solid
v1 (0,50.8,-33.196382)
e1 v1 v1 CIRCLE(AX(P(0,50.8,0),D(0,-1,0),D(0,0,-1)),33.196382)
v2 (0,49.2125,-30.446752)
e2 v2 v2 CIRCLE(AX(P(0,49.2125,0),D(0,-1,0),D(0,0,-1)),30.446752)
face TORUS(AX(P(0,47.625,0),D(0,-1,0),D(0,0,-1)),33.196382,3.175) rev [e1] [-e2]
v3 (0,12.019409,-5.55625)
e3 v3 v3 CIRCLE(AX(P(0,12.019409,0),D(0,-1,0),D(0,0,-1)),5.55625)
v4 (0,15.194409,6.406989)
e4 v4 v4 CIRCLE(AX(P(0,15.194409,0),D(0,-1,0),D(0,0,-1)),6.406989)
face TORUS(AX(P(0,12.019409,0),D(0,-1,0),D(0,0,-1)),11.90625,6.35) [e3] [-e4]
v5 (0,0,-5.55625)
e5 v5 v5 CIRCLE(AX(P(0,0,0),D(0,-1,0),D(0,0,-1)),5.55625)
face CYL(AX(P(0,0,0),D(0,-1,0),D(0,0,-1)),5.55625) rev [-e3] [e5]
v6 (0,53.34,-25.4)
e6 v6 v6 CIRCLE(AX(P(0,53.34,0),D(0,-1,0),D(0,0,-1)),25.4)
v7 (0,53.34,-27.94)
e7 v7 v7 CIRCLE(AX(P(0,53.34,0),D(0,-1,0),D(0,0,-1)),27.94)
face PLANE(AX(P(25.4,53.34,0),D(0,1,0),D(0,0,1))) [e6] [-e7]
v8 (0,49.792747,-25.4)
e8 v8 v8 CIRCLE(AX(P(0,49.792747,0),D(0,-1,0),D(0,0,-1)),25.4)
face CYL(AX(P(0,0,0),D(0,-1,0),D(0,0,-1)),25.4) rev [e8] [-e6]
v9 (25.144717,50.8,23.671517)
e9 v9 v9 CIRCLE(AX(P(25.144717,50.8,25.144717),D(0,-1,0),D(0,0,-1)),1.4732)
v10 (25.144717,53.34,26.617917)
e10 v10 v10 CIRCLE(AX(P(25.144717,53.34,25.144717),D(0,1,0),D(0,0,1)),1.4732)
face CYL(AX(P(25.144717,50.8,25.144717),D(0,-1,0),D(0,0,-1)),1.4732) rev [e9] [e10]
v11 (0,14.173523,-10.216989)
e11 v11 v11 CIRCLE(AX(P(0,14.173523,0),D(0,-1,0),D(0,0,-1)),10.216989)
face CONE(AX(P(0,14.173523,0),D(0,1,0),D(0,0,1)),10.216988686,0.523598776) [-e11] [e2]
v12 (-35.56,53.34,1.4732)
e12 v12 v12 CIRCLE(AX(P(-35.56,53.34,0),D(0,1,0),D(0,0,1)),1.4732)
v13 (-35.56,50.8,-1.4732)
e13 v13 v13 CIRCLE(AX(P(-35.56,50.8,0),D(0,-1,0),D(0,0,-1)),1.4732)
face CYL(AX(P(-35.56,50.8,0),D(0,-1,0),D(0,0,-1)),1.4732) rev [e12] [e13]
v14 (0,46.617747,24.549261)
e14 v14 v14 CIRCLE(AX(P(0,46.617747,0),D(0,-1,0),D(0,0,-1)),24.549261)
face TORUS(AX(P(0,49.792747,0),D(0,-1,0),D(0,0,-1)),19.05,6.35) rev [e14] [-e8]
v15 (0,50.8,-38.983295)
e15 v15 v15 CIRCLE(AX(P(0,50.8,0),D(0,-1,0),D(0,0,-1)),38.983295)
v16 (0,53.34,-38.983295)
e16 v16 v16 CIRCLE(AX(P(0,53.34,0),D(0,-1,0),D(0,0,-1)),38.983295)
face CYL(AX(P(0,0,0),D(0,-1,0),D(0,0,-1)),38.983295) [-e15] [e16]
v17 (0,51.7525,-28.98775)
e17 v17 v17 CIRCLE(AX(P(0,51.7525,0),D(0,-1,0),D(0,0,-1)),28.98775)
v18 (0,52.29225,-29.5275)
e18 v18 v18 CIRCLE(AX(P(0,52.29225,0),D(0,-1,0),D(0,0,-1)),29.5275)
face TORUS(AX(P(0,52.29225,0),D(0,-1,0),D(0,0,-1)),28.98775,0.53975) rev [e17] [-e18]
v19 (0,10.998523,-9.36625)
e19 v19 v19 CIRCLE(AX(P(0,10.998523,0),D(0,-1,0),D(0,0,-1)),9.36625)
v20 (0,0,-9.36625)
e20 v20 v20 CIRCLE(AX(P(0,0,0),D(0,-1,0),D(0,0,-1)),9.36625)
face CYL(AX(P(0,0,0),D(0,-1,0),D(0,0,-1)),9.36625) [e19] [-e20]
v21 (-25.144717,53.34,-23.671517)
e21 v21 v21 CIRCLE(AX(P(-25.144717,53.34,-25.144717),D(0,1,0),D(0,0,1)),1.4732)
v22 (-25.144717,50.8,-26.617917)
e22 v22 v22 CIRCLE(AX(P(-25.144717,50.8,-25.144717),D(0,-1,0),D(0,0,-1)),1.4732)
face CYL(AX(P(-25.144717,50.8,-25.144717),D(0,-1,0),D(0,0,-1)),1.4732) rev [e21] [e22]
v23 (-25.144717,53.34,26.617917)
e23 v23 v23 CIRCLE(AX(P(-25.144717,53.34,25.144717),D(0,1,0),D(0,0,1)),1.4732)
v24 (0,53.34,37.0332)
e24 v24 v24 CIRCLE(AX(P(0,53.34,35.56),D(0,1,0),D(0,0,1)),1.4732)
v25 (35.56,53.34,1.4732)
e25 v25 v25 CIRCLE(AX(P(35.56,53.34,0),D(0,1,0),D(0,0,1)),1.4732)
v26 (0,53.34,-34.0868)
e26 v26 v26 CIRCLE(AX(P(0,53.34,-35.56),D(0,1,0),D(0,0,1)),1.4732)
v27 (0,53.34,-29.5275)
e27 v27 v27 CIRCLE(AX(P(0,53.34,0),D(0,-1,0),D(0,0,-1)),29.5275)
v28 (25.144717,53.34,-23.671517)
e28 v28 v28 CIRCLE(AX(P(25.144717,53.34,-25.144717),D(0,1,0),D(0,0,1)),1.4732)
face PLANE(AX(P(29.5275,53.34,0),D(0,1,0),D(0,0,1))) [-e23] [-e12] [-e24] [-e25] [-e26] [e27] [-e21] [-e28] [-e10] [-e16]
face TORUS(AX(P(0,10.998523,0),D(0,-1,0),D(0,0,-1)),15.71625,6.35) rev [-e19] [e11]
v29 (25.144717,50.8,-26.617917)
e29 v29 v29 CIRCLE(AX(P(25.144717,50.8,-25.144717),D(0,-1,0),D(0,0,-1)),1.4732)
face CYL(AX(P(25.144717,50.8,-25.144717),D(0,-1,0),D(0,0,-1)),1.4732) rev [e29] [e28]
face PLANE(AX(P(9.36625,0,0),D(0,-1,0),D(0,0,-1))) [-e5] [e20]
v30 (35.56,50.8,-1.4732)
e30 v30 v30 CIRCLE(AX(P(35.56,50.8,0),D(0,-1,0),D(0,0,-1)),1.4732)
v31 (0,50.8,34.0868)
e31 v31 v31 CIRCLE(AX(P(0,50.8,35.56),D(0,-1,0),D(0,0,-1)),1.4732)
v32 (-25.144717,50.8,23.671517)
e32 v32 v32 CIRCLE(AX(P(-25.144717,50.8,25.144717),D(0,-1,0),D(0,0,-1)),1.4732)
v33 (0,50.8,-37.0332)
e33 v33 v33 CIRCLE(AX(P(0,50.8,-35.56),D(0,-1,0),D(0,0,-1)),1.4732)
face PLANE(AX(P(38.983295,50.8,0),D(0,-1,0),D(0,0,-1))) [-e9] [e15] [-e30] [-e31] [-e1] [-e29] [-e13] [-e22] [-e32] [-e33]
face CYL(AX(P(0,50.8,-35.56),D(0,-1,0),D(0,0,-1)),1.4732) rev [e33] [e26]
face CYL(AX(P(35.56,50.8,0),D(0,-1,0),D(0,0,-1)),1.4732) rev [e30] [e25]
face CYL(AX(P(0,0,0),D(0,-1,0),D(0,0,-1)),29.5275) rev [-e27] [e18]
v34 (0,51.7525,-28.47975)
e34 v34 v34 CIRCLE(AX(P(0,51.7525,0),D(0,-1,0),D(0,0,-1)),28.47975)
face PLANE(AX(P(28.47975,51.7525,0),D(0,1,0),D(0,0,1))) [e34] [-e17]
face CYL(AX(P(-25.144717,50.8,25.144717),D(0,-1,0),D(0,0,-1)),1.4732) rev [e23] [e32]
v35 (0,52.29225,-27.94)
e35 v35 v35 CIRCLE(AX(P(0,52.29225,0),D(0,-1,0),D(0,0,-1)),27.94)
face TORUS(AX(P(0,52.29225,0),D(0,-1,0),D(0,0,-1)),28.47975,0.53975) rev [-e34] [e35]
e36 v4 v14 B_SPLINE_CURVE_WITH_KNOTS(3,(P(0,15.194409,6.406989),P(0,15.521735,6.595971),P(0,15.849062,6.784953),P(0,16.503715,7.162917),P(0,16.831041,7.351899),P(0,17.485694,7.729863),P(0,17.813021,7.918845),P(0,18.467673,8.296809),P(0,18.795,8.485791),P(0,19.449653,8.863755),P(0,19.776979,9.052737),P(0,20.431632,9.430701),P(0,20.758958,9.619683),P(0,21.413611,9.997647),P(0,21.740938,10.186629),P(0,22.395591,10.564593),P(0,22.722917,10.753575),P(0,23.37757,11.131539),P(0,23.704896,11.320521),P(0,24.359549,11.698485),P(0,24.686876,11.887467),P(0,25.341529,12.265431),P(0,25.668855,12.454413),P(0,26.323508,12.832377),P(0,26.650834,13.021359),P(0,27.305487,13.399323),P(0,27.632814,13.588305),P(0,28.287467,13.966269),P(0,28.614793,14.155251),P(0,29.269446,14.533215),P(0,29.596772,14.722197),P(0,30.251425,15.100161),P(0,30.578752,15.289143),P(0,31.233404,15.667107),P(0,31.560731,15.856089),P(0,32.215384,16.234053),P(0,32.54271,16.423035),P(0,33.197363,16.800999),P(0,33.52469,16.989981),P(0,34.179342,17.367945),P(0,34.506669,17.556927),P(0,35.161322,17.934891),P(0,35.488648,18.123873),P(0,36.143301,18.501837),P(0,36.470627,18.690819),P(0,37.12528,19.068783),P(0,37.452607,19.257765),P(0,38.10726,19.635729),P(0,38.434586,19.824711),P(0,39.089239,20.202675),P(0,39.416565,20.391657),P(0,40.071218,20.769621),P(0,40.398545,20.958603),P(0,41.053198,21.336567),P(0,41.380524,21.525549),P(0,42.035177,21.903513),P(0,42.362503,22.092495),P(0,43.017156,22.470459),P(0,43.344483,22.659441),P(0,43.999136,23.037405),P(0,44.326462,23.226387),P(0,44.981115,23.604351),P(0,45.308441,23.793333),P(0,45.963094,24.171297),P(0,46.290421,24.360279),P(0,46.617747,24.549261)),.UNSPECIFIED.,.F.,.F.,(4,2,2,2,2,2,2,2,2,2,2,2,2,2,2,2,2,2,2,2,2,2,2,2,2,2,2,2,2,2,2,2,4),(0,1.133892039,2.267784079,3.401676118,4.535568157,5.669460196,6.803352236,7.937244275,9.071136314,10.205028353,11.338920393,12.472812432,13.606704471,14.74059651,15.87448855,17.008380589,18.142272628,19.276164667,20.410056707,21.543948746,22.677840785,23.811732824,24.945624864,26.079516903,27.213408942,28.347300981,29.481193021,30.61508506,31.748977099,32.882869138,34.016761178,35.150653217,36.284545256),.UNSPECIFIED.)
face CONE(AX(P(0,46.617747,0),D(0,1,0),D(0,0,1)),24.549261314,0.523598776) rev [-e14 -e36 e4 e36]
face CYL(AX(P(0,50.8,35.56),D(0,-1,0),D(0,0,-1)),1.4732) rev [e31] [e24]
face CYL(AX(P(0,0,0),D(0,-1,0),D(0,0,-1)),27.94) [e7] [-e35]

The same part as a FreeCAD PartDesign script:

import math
import FreeCAD as App
import Part
import Sketcher
from FreeCAD import Vector
Q = App.Units.Quantity

doc = App.newDocument("Part")
body = doc.addObject("PartDesign::Body", "Body")

# Sketch on XY plane
sketch1 = body.newObject("Sketcher::SketchObject", "Sketch")
sketch1.AttachmentSupport = (doc.getObject("XY_Plane"), [""])
sketch1.MapMode = "FlatFace"
sketch1.addGeometry([
    Part.LineSegment(Vector(5.6, 12, 0), Vector(5.6, 0, 0)),  # 0
    Part.LineSegment(Vector(5.6, 0, 0), Vector(9.4, 0, 0)),  # 1
    Part.LineSegment(Vector(9.4, 0, 0), Vector(9.4, 11, 0)),  # 2
    Part.ArcOfCircle(Part.Circle(Vector(15.7, 11, 0), Vector(0, 0, 1), 6.4), math.radians(150), math.radians(180)),  # 3
    Part.LineSegment(Vector(10.2, 14.2, 0), Vector(30.4, 49.2, 0)),  # 4
    Part.ArcOfCircle(Part.Circle(Vector(33.2, 47.6, 0), Vector(0, 0, 1), 3.2), math.radians(90), math.radians(150)),  # 5
    Part.LineSegment(Vector(33.2, 50.8, 0), Vector(39, 50.8, 0)),  # 6
    Part.LineSegment(Vector(39, 50.8, 0), Vector(39, 53.3, 0)),  # 7
    Part.LineSegment(Vector(39, 53.3, 0), Vector(29.5, 53.3, 0)),  # 8
    Part.LineSegment(Vector(29.5, 53.3, 0), Vector(29.5, 52.3, 0)),  # 9
    Part.ArcOfCircle(Part.Circle(Vector(29, 52.3, 0), Vector(0, 0, 1), 0.5), math.radians(-90), math.radians(0)),  # 10
    Part.LineSegment(Vector(29, 51.8, 0), Vector(28.5, 51.8, 0)),  # 11
    Part.ArcOfCircle(Part.Circle(Vector(28.5, 52.3, 0), Vector(0, 0, 1), 0.5), math.radians(180), math.radians(270)),  # 12
    Part.LineSegment(Vector(27.9, 52.3, 0), Vector(27.9, 53.3, 0)),  # 13
    Part.LineSegment(Vector(27.9, 53.3, 0), Vector(25.4, 53.3, 0)),  # 14
    Part.LineSegment(Vector(25.4, 53.3, 0), Vector(25.4, 49.8, 0)),  # 15
    Part.ArcOfCircle(Part.Circle(Vector(19.1, 49.8, 0), Vector(0, 0, 1), 6.3), math.radians(-30), math.radians(0)),  # 16
    Part.LineSegment(Vector(24.5, 46.6, 0), Vector(6.4, 15.2, 0)),  # 17
    Part.ArcOfCircle(Part.Circle(Vector(11.9, 12, 0), Vector(0, 0, 1), 6.3), math.radians(150), math.radians(180)),  # 18
], False)
sketch1.addConstraint([
    Sketcher.Constraint("Coincident", 0, 2, 1, 1),
    Sketcher.Constraint("Coincident", 1, 2, 2, 1),
    Sketcher.Constraint("Tangent", 2, 2, 3, 2),
    Sketcher.Constraint("Tangent", 3, 1, 4, 1),
    Sketcher.Constraint("Tangent", 4, 2, 5, 2),
    Sketcher.Constraint("Tangent", 5, 1, 6, 1),
    Sketcher.Constraint("Coincident", 6, 2, 7, 1),
    Sketcher.Constraint("Coincident", 7, 2, 8, 1),
    Sketcher.Constraint("Coincident", 8, 2, 9, 1),
    Sketcher.Constraint("Tangent", 9, 2, 10, 2),
    Sketcher.Constraint("Tangent", 10, 1, 11, 1),
    Sketcher.Constraint("Tangent", 11, 2, 12, 2),
    Sketcher.Constraint("Tangent", 12, 1, 13, 1),
    Sketcher.Constraint("Coincident", 13, 2, 14, 1),
    Sketcher.Constraint("Coincident", 14, 2, 15, 1),
    Sketcher.Constraint("Tangent", 15, 2, 16, 2),
    Sketcher.Constraint("Tangent", 16, 1, 17, 1),
    Sketcher.Constraint("Tangent", 17, 2, 18, 1),
    Sketcher.Constraint("Tangent", 18, 2, 0, 1),
    Sketcher.Constraint("Vertical", 0),
    Sketcher.Constraint("Horizontal", 1),
    Sketcher.Constraint("Vertical", 2),
    Sketcher.Constraint("Horizontal", 6),
    Sketcher.Constraint("Vertical", 7),
    Sketcher.Constraint("Horizontal", 8),
    Sketcher.Constraint("Vertical", 9),
    Sketcher.Constraint("Horizontal", 11),
    Sketcher.Constraint("Vertical", 13),
    Sketcher.Constraint("Horizontal", 14),
    Sketcher.Constraint("Vertical", 15),
    Sketcher.Constraint("Equal", 10, 12),
    Sketcher.Constraint("Equal", 3, 16),
    Sketcher.Constraint("Equal", 16, 18),
    Sketcher.Constraint("PointOnObject", 0, 2, -1),
    Sketcher.Constraint("Parallel", 4, 17),
    Sketcher.Constraint("Horizontal", 8, 2, 13, 2),
    Sketcher.Constraint("Equal", 14, 7),
    Sketcher.Constraint("Radius", 3, Q("0.25 in")),
    Sketcher.Constraint("DistanceX", 14, 2, 14, 1, Q("0.1 in")),
    Sketcher.Constraint("DistanceY", -1, 1, 5, 1, Q("2 in")),
    Sketcher.Constraint("DistanceX", -1, 1, 14, 2, Q("1 in")),
    Sketcher.Constraint("Angle", 4, Q("60 deg")),
    Sketcher.Constraint("Radius", 5, Q("0.125 in")),
    Sketcher.Constraint("DistanceX", 1, 1, 1, 2, Q("0.15 in")),
    Sketcher.Constraint("DistanceX", 11, 2, 11, 1, Q("0.02 in")),
    Sketcher.Constraint("DistanceY", 4, 2, 10, 1, Q("0.1 in")),
    Sketcher.Constraint("DistanceX", -1, 1, 18, 3, Q("0.46875 in")),
    Sketcher.Constraint("Radius", 10, 0.53975),
    Sketcher.Constraint("DistanceY", 0, 2, 0, 1, 12.019409),
    Sketcher.Constraint("DistanceX", 10, 3, 4, 2, 1.459002),
    Sketcher.Constraint("DistanceX", 6, 1, 6, 2, 5.786913),
])
revolution = body.newObject("PartDesign::Revolution", "Revolution")
revolution.Profile = sketch1
revolution.ReferenceAxis = (sketch1, ["V_Axis"])
revolution.Angle = 360

# Sketch on XZ plane
sketch2 = body.newObject("Sketcher::SketchObject", "Sketch001")
sketch2.AttachmentSupport = (doc.getObject("XZ_Plane"), [""])
sketch2.MapMode = "FlatFace"
sketch2.AttachmentOffset = App.Placement(Vector(0, 0, -2 * 25.4), App.Rotation())
sketch2.addGeometry([
    Part.Circle(Vector(-35.6, 0, 0), Vector(0, 0, 1), 1.5),  # 0
    Part.Circle(Vector(-25.1, 25.1, 0), Vector(0, 0, 1), 1.5),  # 1
    Part.Circle(Vector(0, 35.6, 0), Vector(0, 0, 1), 1.5),  # 2
    Part.Circle(Vector(25.1, 25.1, 0), Vector(0, 0, 1), 1.5),  # 3
    Part.Circle(Vector(35.6, 0, 0), Vector(0, 0, 1), 1.5),  # 4
    Part.Circle(Vector(25.1, -25.1, 0), Vector(0, 0, 1), 1.5),  # 5
    Part.Circle(Vector(0, -35.6, 0), Vector(0, 0, 1), 1.5),  # 6
    Part.Circle(Vector(-25.1, -25.1, 0), Vector(0, 0, 1), 1.5),  # 7
    Part.Circle(Vector(0, 0, 0), Vector(0, 0, 1), 1.5),  # 8
], False)
sketch2.addConstraint([
    Sketcher.Constraint("Coincident", 8, 3, -1, 1),
    Sketcher.Constraint("Equal", 0, 1),
    Sketcher.Constraint("Equal", 1, 2),
    Sketcher.Constraint("Equal", 2, 3),
    Sketcher.Constraint("Equal", 3, 4),
    Sketcher.Constraint("Equal", 4, 5),
    Sketcher.Constraint("Equal", 5, 6),
    Sketcher.Constraint("Equal", 6, 7),
    Sketcher.Constraint("Equal", 7, 8),
    Sketcher.Constraint("Symmetric", 0, 3, 4, 3, -1, 1),
    Sketcher.Constraint("Symmetric", 1, 3, 5, 3, -1, 1),
    Sketcher.Constraint("Symmetric", 2, 3, 6, 3, -1, 1),
    Sketcher.Constraint("Symmetric", 3, 3, 7, 3, -1, 1),
    Sketcher.Constraint("Symmetric", 1, 3, 3, 3, -2),
    Sketcher.Constraint("PointOnObject", 0, 3, -1),
    Sketcher.Constraint("PointOnObject", 2, 3, -2),
    Sketcher.Constraint("Diameter", 0, Q("0.116 in")),
    Sketcher.Constraint("DistanceX", 0, 3, -1, 1, Q("1.4 in")),
    Sketcher.Constraint("DistanceY", -1, 1, 2, 3, Q("1.4 in")),
    Sketcher.Constraint("DistanceX", 1, 3, -1, 1, 25.144717),
    Sketcher.Constraint("DistanceY", -1, 1, 1, 3, 25.144717),
])
doc.recompute()
hole = body.newObject("PartDesign::Hole", "Hole")
hole.Profile = sketch2
hole.ThreadType = "None"
hole.Diameter = Q("0.116 in")
hole.DepthType = "Dimension"
hole.Depth = Q("1.51 in")
hole.DrillPoint = "Angled"
hole.DrillPointAngle = 118

doc.recompute()
